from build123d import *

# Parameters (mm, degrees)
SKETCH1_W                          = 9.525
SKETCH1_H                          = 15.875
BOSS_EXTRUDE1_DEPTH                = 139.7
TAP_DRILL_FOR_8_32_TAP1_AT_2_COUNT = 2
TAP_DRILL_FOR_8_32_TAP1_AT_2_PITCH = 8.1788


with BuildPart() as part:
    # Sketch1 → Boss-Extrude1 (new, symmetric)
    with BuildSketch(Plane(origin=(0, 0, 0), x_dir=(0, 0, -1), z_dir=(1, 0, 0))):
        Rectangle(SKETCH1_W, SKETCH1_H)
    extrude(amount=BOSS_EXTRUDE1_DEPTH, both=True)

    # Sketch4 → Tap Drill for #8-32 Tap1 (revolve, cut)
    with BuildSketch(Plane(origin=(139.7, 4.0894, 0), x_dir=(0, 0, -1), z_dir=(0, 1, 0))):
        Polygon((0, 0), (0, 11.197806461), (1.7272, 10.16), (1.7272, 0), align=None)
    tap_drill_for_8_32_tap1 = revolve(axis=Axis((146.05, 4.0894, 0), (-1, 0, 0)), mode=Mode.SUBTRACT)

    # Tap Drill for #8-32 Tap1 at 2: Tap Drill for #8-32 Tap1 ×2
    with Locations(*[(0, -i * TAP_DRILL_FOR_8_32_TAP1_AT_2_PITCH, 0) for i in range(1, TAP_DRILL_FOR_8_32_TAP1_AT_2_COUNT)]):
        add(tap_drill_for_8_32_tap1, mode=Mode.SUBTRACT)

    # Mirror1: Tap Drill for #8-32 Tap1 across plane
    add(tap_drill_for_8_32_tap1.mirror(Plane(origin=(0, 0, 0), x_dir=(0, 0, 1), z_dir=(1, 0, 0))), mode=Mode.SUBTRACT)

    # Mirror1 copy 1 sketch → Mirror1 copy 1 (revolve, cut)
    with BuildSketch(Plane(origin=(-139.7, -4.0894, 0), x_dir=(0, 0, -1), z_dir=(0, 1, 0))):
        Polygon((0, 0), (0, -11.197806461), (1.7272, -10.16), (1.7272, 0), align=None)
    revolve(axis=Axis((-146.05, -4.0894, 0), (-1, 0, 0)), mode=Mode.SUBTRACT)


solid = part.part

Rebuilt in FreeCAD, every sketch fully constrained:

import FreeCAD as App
import Part
import Sketcher

V = App.Vector
Q = App.Units.Quantity

doc = App.newDocument("Part")
body = doc.addObject("PartDesign::Body", "Body")

# Sketch on YZ plane
sketch1 = body.newObject("Sketcher::SketchObject", "Sketch")
sketch1.AttachmentSupport = (doc.getObject("YZ_Plane"), [""])
sketch1.MapMode = "FlatFace"
sketch1.addGeometry([
    Part.LineSegment(V(8, 5, 0), V(-8, 5, 0)),
    Part.LineSegment(V(-8, 5, 0), V(-8, -5, 0)),
    Part.LineSegment(V(-8, -5, 0), V(8, -5, 0)),
    Part.LineSegment(V(8, -5, 0), V(8, 5, 0)),
], False)
sketch1.addConstraint([
    Sketcher.Constraint("Coincident", 0, 2, 1, 1),
    Sketcher.Constraint("Coincident", 1, 2, 2, 1),
    Sketcher.Constraint("Coincident", 2, 2, 3, 1),
    Sketcher.Constraint("Coincident", 3, 2, 0, 1),
    Sketcher.Constraint("Horizontal", 0),
    Sketcher.Constraint("Vertical", 1),
    Sketcher.Constraint("Horizontal", 2),
    Sketcher.Constraint("Vertical", 3),
    Sketcher.Constraint("Symmetric", 0, 2, 2, 2, -1, 1),
    Sketcher.Constraint("DistanceX", 0, 2, 0, 1, Q("0.625 in")),
    Sketcher.Constraint("DistanceY", 1, 2, 1, 1, Q("0.375 in")),
])
pad1 = body.newObject("PartDesign::Pad", "Pad")
pad1.Profile = sketch1
pad1.Length = Q("11 in")
pad1.Midplane = True

# Sketch on XZ plane
sketch2 = body.newObject("Sketcher::SketchObject", "Sketch001")
sketch2.AttachmentSupport = (doc.getObject("XZ_Plane"), [""])
sketch2.MapMode = "FlatFace"
sketch2.AttachmentOffset = App.Placement(V(0, 0, -0.161 * 25.4), App.Rotation())
sketch2.addGeometry([
    Part.LineSegment(V(128.5, 0, 0), V(139.7, 0, 0)),
    Part.LineSegment(V(139.7, 0, 0), V(139.7, -1.7, 0)),
    Part.LineSegment(V(139.7, -1.7, 0), V(129.5, -1.7, 0)),
    Part.LineSegment(V(129.5, -1.7, 0), V(128.5, 0, 0)),
], False)
sketch2.addConstraint([
    Sketcher.Constraint("Coincident", 0, 2, 1, 1),
    Sketcher.Constraint("Coincident", 1, 2, 2, 1),
    Sketcher.Constraint("Coincident", 2, 2, 3, 1),
    Sketcher.Constraint("Coincident", 3, 2, 0, 1),
    Sketcher.Constraint("Horizontal", 0),
    Sketcher.Constraint("Vertical", 1),
    Sketcher.Constraint("Horizontal", 2),
    Sketcher.Constraint("PointOnObject", 0, 2, -1),
    Sketcher.Constraint("DistanceX", 2, 2, 2, 1, Q("0.4 in")),
    Sketcher.Constraint("Angle", 3, Q("121 deg")),
    Sketcher.Constraint("DistanceX", -1, 1, 0, 2, Q("5.5 in")),
    Sketcher.Constraint("DistanceY", 1, 2, 1, 1, Q("0.068 in")),
])
groove = body.newObject("PartDesign::Groove", "Groove")
groove.Profile = sketch2
groove.ReferenceAxis = (sketch2, ["H_Axis"])
groove.Angle = 360
doc.recompute()

linearpattern = body.newObject("PartDesign::LinearPattern", "LinearPattern")
linearpattern.Originals = [groove]
linearpattern.Direction = (doc.getObject("Y_Axis"), [""])
linearpattern.Mode = "offset"
linearpattern.Offset = Q("0.322 in")
linearpattern.Occurrences = 2
linearpattern.Reversed = True
body.Tip = linearpattern
doc.recompute()

mirrored = body.newObject("PartDesign::Mirrored", "Mirrored")
mirrored.Originals = [groove]
mirrored.MirrorPlane = (doc.getObject("YZ_Plane"), [""])
body.Tip = mirrored

# Sketch on XZ plane
sketch3 = body.newObject("Sketcher::SketchObject", "Sketch002")
sketch3.AttachmentSupport = (doc.getObject("XZ_Plane"), [""])
sketch3.MapMode = "FlatFace"
sketch3.AttachmentOffset = App.Placement(V(0, 0, 0.161 * 25.4), App.Rotation())
sketch3.addGeometry([
    Part.LineSegment(V(-139.7, 0, 0), V(-128.5, 0, 0)),
    Part.LineSegment(V(-128.5, 0, 0), V(-129.5, -1.7, 0)),
    Part.LineSegment(V(-129.5, -1.7, 0), V(-139.7, -1.7, 0)),
    Part.LineSegment(V(-139.7, -1.7, 0), V(-139.7, 0, 0)),
], False)
sketch3.addConstraint([
    Sketcher.Constraint("Coincident", 0, 2, 1, 1),
    Sketcher.Constraint("Coincident", 1, 2, 2, 1),
    Sketcher.Constraint("Coincident", 2, 2, 3, 1),
    Sketcher.Constraint("Coincident", 3, 2, 0, 1),
    Sketcher.Constraint("Horizontal", 0),
    Sketcher.Constraint("Horizontal", 2),
    Sketcher.Constraint("Vertical", 3),
    Sketcher.Constraint("PointOnObject", 0, 2, -1),
    Sketcher.Constraint("DistanceX", 2, 2, 2, 1, Q("0.4 in")),
    Sketcher.Constraint("Angle", 1, Q("-121 deg")),
    Sketcher.Constraint("DistanceX", 1, 2, -1, 1, Q("5.1 in")),
    Sketcher.Constraint("DistanceY", 3, 1, 3, 2, Q("0.068 in")),
])
groove2 = body.newObject("PartDesign::Groove", "Groove001")
groove2.Profile = sketch3
groove2.ReferenceAxis = (sketch3, ["H_Axis"])
groove2.Angle = 360

doc.recompute()
